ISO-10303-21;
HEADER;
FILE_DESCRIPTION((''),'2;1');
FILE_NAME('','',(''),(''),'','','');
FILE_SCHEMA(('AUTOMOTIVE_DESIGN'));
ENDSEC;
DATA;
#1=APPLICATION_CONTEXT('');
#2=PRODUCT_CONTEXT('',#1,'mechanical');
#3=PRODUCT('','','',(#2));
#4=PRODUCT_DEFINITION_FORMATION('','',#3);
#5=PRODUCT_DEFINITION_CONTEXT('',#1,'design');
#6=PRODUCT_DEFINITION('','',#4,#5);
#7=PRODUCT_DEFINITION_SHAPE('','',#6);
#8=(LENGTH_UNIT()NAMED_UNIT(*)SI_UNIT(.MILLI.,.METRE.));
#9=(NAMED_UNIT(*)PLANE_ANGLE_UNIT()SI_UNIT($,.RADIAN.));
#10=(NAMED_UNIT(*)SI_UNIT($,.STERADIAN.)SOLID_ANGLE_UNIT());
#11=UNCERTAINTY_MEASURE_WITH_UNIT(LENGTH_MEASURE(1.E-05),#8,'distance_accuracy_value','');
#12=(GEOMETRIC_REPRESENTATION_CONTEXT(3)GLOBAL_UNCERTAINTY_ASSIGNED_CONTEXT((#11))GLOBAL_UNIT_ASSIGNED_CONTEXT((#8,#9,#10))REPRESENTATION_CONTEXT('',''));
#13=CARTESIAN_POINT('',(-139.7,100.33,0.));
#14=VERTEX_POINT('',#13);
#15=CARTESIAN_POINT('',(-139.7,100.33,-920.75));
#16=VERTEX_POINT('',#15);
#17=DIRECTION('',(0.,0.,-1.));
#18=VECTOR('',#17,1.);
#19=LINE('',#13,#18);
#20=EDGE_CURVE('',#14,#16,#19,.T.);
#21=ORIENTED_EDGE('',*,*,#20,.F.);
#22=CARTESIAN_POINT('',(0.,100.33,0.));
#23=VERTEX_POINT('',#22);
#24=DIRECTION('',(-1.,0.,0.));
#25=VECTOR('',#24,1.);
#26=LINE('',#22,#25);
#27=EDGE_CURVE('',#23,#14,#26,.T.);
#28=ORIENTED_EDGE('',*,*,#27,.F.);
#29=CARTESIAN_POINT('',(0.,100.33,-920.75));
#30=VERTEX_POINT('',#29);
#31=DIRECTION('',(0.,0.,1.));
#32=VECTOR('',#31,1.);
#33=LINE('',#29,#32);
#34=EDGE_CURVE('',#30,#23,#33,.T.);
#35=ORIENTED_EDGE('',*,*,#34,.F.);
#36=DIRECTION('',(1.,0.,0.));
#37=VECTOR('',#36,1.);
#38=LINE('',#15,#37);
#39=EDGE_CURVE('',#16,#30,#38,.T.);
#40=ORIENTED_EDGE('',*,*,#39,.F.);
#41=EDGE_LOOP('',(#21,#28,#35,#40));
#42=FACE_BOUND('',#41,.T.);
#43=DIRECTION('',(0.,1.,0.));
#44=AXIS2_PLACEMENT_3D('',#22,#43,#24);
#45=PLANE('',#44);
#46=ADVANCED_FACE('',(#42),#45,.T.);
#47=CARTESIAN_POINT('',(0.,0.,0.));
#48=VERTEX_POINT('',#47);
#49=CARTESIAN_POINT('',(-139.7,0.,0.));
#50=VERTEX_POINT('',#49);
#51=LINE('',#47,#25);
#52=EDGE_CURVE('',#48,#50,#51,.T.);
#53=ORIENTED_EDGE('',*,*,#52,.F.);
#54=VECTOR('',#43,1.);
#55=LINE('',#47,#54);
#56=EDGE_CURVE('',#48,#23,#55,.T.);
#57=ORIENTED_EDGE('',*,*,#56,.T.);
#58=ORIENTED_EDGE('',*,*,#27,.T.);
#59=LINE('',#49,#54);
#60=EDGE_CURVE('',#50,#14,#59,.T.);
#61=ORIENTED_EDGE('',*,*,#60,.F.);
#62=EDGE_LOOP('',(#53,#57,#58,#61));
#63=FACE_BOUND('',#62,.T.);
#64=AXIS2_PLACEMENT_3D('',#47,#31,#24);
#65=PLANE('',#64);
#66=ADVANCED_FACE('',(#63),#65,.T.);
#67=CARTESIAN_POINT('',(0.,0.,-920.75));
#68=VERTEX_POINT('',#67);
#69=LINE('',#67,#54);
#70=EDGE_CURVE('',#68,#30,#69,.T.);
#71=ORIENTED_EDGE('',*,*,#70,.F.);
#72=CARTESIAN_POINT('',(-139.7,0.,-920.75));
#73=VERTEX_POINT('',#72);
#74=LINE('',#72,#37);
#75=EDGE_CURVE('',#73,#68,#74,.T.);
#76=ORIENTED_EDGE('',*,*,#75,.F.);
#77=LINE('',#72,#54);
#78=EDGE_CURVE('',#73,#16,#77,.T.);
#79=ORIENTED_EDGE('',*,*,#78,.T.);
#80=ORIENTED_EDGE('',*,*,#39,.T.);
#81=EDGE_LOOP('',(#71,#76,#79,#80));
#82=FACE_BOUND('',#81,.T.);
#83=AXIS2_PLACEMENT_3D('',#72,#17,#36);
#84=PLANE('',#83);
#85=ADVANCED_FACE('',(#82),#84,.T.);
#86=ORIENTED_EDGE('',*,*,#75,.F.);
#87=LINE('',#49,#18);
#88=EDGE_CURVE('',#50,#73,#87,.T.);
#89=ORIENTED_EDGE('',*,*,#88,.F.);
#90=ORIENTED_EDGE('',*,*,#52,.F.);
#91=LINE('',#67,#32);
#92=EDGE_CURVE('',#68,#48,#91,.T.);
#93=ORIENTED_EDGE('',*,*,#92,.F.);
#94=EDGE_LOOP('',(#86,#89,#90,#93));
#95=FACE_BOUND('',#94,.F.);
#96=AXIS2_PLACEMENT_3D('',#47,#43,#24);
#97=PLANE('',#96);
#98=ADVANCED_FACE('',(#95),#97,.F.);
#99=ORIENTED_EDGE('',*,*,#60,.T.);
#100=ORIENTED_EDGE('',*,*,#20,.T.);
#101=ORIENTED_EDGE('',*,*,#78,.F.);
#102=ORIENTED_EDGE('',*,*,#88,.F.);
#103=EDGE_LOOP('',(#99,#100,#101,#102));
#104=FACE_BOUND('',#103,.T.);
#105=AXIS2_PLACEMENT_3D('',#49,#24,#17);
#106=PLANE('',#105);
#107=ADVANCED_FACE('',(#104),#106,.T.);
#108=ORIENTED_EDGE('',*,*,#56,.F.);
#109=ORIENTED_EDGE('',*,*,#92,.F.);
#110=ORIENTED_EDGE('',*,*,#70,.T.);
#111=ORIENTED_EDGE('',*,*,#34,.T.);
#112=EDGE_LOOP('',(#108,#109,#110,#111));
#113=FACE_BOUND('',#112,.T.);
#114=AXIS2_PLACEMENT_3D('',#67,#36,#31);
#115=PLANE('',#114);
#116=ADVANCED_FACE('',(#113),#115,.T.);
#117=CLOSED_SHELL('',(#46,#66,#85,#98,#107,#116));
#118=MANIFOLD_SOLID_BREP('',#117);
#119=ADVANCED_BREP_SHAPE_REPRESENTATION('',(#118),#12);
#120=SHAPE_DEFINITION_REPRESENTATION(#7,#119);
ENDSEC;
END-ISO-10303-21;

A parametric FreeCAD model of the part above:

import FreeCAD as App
import Part
import Sketcher
Q = App.Units.Quantity

doc = App.newDocument("Part")
body = doc.addObject("PartDesign::Body", "Body")

sketch1 = doc.addObject("Sketcher::SketchObject", "Sketch")
body.addObject(sketch1)
sketch1.AttachmentSupport = (doc.XZ_Plane, [""])
sketch1.MapMode = "FlatFace"
sketch1.addGeometry([
    Part.LineSegment(App.Vector(-140, 0, 0), App.Vector(0, 0, 0)),
    Part.LineSegment(App.Vector(0, 0, 0), App.Vector(0, -921, 0)),
    Part.LineSegment(App.Vector(0, -921, 0), App.Vector(-140, -921, 0)),
    Part.LineSegment(App.Vector(-140, -921, 0), App.Vector(-140, 0, 0)),
], False)
sketch1.addConstraint([
    Sketcher.Constraint("Coincident", 0, 2, 1, 1),
    Sketcher.Constraint("Coincident", 1, 2, 2, 1),
    Sketcher.Constraint("Coincident", 2, 2, 3, 1),
    Sketcher.Constraint("Coincident", 3, 2, 0, 1),
    Sketcher.Constraint("Horizontal", 0),
    Sketcher.Constraint("Vertical", 1),
    Sketcher.Constraint("Horizontal", 2),
    Sketcher.Constraint("Vertical", 3),
    Sketcher.Constraint("Coincident", 0, 2, -1, 1),
    Sketcher.Constraint("DistanceX", 0, 1, 0, 2, Q("5.5 in")),
    Sketcher.Constraint("DistanceY", 1, 2, 1, 1, Q("36.25 in")),
])
pad1 = doc.addObject("PartDesign::Pad", "Pad")
body.addObject(pad1)
pad1.Profile = sketch1
pad1.Length = Q("3.95 in")
pad1.Reversed = True

doc.recompute()
